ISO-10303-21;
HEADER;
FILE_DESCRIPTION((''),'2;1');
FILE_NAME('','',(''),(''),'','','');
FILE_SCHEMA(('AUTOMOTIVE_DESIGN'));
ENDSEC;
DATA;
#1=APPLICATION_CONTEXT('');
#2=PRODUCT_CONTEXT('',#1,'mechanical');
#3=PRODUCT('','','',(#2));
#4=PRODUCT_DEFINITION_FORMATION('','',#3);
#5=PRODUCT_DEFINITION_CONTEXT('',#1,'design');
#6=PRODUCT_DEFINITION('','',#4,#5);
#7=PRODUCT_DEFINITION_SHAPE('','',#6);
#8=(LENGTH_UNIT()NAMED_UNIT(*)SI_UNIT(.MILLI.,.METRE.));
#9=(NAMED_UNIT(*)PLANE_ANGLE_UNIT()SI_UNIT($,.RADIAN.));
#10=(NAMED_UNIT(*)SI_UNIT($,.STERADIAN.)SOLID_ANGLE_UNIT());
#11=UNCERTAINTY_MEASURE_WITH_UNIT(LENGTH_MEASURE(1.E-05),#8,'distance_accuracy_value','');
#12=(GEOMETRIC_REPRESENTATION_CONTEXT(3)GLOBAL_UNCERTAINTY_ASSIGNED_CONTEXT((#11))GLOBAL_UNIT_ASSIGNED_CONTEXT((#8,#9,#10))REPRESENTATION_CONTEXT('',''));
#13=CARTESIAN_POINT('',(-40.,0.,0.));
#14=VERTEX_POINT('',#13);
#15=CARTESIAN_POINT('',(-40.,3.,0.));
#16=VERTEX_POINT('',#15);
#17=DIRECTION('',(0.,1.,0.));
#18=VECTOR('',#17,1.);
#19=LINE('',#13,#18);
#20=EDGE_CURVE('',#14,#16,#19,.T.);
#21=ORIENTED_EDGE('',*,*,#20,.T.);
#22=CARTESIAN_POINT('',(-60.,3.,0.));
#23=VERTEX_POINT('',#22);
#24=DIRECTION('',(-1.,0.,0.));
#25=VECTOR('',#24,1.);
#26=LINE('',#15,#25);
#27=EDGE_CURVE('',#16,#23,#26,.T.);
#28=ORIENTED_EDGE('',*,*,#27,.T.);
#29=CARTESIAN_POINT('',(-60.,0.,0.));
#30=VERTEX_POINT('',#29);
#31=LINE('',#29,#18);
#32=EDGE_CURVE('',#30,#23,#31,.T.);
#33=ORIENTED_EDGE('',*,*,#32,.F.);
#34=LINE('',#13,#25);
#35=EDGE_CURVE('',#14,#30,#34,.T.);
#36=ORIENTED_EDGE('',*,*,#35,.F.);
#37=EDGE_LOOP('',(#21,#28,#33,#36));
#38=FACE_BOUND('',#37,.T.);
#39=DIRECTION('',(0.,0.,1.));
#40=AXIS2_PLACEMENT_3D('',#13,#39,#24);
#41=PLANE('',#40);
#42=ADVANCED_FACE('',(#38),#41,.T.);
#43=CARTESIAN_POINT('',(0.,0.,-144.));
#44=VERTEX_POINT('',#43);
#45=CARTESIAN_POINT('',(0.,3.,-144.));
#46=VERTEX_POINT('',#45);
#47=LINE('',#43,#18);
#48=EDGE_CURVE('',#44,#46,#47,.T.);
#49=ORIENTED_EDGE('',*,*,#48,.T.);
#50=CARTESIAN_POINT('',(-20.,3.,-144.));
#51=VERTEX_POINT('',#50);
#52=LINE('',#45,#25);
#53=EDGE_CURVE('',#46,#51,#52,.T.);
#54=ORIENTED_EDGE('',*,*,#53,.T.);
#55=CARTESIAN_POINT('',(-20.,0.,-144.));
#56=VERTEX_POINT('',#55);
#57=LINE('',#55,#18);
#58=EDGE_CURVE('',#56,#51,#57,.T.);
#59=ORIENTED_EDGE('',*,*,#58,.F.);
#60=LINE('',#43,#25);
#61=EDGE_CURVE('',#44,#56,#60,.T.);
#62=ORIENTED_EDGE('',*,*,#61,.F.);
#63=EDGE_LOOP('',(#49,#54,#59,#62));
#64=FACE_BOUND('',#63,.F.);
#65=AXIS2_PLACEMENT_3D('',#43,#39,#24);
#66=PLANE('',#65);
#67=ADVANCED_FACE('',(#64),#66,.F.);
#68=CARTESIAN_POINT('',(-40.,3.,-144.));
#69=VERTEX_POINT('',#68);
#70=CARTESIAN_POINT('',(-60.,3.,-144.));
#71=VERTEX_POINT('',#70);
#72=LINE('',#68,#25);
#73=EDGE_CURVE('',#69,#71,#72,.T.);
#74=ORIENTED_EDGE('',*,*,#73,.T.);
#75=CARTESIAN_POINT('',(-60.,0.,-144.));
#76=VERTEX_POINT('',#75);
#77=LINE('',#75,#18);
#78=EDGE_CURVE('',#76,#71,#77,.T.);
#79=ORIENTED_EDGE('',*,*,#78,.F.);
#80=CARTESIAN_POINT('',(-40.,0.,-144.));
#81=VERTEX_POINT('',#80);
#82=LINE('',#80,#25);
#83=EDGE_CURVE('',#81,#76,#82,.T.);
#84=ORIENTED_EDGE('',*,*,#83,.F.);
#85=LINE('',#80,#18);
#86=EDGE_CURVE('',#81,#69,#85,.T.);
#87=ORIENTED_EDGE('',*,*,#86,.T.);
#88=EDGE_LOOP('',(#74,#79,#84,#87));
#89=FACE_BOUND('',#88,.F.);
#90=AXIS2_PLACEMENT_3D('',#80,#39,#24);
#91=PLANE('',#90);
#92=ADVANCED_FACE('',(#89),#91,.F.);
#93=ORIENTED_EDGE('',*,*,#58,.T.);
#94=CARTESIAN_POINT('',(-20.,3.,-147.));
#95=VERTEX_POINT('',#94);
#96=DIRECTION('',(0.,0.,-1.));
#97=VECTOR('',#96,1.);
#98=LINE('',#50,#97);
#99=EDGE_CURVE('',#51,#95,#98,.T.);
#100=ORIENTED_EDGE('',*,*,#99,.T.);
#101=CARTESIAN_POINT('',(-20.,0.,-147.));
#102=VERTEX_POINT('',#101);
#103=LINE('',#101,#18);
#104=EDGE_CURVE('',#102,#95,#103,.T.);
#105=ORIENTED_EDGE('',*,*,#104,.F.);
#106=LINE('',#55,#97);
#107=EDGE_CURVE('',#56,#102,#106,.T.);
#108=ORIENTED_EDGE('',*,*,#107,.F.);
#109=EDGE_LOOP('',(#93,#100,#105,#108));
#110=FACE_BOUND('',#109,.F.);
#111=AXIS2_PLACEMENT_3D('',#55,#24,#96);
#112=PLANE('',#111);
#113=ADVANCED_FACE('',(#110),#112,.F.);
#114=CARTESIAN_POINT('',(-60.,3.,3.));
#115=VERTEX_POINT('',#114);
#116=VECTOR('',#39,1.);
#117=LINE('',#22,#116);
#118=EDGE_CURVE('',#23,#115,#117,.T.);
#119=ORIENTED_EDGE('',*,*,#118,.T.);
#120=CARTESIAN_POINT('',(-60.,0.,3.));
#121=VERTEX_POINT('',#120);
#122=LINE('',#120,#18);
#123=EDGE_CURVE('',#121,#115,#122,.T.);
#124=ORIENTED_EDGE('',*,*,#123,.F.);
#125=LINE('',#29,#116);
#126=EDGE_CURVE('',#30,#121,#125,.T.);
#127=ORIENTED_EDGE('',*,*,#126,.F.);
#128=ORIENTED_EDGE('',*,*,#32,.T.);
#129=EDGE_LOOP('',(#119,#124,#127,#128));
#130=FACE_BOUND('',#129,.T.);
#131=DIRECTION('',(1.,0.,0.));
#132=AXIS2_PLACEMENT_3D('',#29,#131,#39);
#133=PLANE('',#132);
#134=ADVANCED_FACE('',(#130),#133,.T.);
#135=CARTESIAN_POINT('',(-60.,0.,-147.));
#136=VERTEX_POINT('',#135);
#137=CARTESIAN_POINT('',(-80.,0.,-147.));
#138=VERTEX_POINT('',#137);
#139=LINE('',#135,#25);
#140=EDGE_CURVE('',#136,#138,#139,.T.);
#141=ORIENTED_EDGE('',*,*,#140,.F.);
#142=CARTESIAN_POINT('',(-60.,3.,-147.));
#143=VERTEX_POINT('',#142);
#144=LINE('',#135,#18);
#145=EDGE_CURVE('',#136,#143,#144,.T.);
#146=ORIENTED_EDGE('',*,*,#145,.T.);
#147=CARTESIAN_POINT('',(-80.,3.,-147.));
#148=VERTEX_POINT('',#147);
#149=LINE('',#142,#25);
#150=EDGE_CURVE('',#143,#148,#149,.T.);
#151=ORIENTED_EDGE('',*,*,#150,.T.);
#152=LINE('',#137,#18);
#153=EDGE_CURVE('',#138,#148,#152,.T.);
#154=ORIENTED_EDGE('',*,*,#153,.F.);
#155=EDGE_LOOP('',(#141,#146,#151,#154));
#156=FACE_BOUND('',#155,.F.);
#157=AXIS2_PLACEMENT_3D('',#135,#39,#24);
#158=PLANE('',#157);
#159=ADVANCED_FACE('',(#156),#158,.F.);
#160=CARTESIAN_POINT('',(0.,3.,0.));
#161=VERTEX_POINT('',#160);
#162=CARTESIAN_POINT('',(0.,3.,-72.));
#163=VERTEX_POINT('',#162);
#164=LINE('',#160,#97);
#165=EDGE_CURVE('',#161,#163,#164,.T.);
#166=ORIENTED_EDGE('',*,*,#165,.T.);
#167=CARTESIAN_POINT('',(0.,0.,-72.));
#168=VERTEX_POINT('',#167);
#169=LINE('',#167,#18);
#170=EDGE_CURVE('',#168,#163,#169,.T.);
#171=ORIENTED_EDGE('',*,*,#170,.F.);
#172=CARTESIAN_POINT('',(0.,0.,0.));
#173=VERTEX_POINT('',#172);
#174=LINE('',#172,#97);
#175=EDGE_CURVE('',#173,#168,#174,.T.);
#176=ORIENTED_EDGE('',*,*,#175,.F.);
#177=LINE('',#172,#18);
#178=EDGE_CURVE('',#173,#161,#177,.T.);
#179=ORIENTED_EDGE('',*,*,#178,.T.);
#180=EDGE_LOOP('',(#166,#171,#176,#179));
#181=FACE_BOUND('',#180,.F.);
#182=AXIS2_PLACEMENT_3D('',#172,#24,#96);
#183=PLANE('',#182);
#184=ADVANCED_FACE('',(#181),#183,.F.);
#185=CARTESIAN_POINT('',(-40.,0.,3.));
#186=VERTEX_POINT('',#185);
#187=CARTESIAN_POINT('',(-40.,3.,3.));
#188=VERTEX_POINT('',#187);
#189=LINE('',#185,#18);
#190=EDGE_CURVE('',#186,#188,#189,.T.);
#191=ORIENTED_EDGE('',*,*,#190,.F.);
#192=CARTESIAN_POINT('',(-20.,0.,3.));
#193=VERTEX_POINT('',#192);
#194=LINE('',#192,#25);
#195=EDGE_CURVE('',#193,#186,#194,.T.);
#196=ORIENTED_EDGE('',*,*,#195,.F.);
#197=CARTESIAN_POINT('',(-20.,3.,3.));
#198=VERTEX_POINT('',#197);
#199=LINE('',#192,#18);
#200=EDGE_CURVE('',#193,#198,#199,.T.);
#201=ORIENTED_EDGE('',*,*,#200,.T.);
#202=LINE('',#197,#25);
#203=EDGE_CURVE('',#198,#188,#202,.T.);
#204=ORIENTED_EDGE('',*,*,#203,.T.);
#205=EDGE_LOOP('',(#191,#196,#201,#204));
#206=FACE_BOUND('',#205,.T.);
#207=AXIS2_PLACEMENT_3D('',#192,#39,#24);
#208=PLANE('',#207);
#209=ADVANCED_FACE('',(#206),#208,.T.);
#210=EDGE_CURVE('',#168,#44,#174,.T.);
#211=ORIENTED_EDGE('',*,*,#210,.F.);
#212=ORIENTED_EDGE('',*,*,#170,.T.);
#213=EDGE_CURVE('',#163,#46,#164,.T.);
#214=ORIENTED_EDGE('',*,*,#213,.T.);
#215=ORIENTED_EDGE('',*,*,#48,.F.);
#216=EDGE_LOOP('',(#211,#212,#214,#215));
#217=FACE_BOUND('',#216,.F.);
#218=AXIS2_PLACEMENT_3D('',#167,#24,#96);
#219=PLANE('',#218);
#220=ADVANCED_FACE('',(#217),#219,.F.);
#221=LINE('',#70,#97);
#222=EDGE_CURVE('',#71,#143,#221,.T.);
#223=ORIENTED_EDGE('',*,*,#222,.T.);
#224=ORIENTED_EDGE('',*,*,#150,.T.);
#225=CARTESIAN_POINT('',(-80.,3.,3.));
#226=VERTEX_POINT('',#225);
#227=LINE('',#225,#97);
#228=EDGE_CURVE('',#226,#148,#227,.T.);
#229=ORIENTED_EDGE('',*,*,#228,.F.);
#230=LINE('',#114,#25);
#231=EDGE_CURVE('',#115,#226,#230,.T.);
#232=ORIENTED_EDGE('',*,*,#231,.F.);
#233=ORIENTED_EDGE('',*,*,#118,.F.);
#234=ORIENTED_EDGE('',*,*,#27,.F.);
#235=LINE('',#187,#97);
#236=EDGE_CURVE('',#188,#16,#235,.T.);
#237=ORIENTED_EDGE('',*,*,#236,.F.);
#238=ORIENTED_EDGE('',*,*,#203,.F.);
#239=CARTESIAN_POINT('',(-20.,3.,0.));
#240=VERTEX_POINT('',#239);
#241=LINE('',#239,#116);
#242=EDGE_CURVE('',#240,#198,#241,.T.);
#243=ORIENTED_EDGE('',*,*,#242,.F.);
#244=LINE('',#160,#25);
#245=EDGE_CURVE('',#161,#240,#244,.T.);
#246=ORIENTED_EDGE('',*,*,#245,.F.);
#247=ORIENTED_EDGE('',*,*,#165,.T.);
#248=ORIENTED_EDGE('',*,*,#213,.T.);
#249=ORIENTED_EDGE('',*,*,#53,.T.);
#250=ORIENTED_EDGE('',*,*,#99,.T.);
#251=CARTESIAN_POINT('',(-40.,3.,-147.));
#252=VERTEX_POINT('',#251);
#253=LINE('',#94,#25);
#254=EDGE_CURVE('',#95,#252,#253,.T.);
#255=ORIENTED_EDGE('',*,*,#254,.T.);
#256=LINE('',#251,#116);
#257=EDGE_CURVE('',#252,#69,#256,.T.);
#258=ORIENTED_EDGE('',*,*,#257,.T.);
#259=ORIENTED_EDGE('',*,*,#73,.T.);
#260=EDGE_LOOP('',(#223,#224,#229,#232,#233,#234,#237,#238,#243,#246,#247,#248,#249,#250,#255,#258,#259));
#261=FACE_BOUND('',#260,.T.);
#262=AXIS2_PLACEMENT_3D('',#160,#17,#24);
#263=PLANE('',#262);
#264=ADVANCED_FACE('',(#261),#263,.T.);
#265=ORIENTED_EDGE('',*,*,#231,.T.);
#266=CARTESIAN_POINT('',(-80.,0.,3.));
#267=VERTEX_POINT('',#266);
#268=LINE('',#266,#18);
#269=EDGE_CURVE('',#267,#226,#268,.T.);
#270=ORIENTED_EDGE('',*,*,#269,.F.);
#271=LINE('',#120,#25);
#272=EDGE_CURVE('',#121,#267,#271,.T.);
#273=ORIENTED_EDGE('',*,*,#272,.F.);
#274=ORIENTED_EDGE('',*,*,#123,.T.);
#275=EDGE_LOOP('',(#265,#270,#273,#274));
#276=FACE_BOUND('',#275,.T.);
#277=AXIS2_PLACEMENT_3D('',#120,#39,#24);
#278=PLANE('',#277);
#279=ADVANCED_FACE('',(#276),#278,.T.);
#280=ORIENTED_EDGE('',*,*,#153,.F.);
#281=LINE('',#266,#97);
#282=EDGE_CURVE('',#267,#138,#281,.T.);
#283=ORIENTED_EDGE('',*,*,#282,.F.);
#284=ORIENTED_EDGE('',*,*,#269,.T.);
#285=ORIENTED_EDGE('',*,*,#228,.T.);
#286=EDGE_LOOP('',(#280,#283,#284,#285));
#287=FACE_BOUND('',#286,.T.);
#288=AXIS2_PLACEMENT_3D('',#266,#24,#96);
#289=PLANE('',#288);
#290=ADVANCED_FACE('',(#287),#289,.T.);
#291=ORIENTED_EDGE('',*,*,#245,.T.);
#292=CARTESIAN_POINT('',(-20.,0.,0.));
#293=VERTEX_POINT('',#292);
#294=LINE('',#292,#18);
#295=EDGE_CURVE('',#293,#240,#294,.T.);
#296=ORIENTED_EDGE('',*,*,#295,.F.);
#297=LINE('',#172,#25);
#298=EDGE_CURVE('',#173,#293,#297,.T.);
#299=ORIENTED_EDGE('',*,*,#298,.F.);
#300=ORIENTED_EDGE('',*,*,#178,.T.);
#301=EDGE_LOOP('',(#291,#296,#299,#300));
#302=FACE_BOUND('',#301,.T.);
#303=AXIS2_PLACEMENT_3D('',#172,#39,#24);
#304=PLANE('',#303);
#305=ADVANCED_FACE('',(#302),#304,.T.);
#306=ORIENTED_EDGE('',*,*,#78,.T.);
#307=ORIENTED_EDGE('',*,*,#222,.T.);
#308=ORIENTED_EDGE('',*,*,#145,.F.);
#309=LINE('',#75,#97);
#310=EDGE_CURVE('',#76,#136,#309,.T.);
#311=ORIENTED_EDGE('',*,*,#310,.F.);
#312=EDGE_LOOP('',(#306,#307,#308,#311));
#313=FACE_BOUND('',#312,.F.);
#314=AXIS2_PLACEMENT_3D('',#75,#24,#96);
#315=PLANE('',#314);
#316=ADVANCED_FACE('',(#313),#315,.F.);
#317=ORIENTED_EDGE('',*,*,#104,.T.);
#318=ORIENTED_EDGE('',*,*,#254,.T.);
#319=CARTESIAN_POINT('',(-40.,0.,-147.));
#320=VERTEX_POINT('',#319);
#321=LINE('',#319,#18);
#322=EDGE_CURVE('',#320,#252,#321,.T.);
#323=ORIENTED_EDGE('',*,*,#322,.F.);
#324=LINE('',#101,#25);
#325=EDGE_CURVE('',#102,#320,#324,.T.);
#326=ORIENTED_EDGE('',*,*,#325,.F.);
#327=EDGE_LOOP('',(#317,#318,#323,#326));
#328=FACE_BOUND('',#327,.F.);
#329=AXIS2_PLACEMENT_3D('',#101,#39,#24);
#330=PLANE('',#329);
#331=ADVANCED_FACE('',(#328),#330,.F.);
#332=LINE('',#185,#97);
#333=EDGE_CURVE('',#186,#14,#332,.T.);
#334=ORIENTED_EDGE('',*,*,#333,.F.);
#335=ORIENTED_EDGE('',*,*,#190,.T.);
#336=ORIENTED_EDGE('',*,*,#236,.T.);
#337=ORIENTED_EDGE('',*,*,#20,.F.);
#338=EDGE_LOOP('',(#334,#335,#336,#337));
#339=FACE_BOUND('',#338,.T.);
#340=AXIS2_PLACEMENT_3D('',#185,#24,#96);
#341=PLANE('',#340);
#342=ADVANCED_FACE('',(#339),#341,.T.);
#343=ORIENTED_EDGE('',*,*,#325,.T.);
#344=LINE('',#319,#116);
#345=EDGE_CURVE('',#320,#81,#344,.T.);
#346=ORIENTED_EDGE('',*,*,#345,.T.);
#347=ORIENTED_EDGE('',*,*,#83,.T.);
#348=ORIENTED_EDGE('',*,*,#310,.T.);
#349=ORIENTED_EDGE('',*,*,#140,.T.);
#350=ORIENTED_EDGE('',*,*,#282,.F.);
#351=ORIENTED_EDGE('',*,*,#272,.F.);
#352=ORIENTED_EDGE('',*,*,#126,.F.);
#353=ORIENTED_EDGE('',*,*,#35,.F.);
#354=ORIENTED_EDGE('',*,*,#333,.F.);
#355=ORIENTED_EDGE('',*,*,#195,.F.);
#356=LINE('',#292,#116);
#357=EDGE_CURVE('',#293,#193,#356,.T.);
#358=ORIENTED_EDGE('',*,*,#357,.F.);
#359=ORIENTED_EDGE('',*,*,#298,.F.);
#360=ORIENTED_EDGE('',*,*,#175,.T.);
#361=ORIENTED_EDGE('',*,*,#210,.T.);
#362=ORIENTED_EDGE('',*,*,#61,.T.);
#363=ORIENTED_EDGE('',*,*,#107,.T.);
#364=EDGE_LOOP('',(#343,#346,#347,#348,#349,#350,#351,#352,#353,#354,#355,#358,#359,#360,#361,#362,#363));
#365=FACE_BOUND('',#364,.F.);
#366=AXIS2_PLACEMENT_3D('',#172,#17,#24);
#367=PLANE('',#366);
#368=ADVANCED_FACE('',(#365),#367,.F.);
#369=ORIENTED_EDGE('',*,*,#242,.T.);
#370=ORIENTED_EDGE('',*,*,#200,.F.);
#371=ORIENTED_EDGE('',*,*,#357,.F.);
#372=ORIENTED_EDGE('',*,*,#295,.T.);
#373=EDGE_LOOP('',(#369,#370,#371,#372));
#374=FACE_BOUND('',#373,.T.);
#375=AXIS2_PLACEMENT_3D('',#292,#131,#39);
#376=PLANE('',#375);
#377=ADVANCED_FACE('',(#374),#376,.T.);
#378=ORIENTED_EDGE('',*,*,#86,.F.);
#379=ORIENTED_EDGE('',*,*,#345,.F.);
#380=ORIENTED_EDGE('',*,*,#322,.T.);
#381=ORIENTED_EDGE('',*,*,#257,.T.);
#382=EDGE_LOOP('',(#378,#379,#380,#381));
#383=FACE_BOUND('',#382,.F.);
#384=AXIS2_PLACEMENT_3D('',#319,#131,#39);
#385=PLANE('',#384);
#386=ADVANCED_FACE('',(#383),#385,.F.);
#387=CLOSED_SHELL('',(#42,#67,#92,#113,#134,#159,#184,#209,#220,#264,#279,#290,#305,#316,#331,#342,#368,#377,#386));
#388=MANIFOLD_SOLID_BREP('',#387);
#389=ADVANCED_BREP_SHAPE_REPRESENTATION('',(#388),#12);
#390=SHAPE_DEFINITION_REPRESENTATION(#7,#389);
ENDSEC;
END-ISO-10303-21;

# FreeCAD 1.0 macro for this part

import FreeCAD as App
import Part
import Sketcher

doc = App.newDocument("Part")
params = doc.addObject("Spreadsheet::Sheet", "Params")
for row, (alias, value) in enumerate([
    ("sketch1_width", "20 mm"),
    ("sketch1_height", "144 mm"),
    ("sketch1_height2", "3 mm"),
    ("pad1_length", "3 mm"),
], start=1):
    params.set(f"A{row}", alias)
    params.set(f"B{row}", "=" + value)
    params.setAlias(f"B{row}", alias)

body = doc.addObject("PartDesign::Body", "Body")

# Sketch on XZ plane
sketch1 = body.newObject("Sketcher::SketchObject", "Sketch")
sketch1.AttachmentSupport = (doc.getObject("XZ_Plane"), [""])
sketch1.MapMode = "FlatFace"
sketch1.addGeometry(Part.LineSegment(App.Vector(-20, 0, 0), App.Vector(0, 0, 0)), False)
sketch1.addGeometry(Part.LineSegment(App.Vector(0, 0, 0), App.Vector(0, -144, 0)), False)
sketch1.addGeometry(Part.LineSegment(App.Vector(0, -144, 0), App.Vector(-20, -144, 0)), False)
sketch1.addGeometry(Part.LineSegment(App.Vector(-20, -144, 0), App.Vector(-20, -147, 0)), False)
sketch1.addGeometry(Part.LineSegment(App.Vector(-20, -147, 0), App.Vector(-40, -147, 0)), False)
sketch1.addGeometry(Part.LineSegment(App.Vector(-40, -147, 0), App.Vector(-40, -144, 0)), False)
sketch1.addGeometry(Part.LineSegment(App.Vector(-40, -144, 0), App.Vector(-60, -144, 0)), False)
sketch1.addGeometry(Part.LineSegment(App.Vector(-60, -144, 0), App.Vector(-60, -147, 0)), False)
sketch1.addGeometry(Part.LineSegment(App.Vector(-60, -147, 0), App.Vector(-80, -147, 0)), False)
sketch1.addGeometry(Part.LineSegment(App.Vector(-80, -147, 0), App.Vector(-80, 3, 0)), False)
sketch1.addGeometry(Part.LineSegment(App.Vector(-80, 3, 0), App.Vector(-60, 3, 0)), False)
sketch1.addGeometry(Part.LineSegment(App.Vector(-60, 3, 0), App.Vector(-60, 0, 0)), False)
sketch1.addGeometry(Part.LineSegment(App.Vector(-60, 0, 0), App.Vector(-40, 0, 0)), False)
sketch1.addGeometry(Part.LineSegment(App.Vector(-40, 0, 0), App.Vector(-40, 3, 0)), False)
sketch1.addGeometry(Part.LineSegment(App.Vector(-40, 3, 0), App.Vector(-20, 3, 0)), False)
sketch1.addGeometry(Part.LineSegment(App.Vector(-20, 3, 0), App.Vector(-20, 0, 0)), False)
sketch1.addConstraint(Sketcher.Constraint("Coincident", 0, 2, 1, 1))
sketch1.addConstraint(Sketcher.Constraint("Coincident", 1, 2, 2, 1))
sketch1.addConstraint(Sketcher.Constraint("Coincident", 2, 2, 3, 1))
sketch1.addConstraint(Sketcher.Constraint("Coincident", 3, 2, 4, 1))
sketch1.addConstraint(Sketcher.Constraint("Coincident", 4, 2, 5, 1))
sketch1.addConstraint(Sketcher.Constraint("Coincident", 5, 2, 6, 1))
sketch1.addConstraint(Sketcher.Constraint("Coincident", 6, 2, 7, 1))
sketch1.addConstraint(Sketcher.Constraint("Coincident", 7, 2, 8, 1))
sketch1.addConstraint(Sketcher.Constraint("Coincident", 8, 2, 9, 1))
sketch1.addConstraint(Sketcher.Constraint("Coincident", 9, 2, 10, 1))
sketch1.addConstraint(Sketcher.Constraint("Coincident", 10, 2, 11, 1))
sketch1.addConstraint(Sketcher.Constraint("Coincident", 11, 2, 12, 1))
sketch1.addConstraint(Sketcher.Constraint("Coincident", 12, 2, 13, 1))
sketch1.addConstraint(Sketcher.Constraint("Coincident", 13, 2, 14, 1))
sketch1.addConstraint(Sketcher.Constraint("Coincident", 14, 2, 15, 1))
sketch1.addConstraint(Sketcher.Constraint("Coincident", 15, 2, 0, 1))
sketch1.addConstraint(Sketcher.Constraint("Horizontal", 0))
sketch1.addConstraint(Sketcher.Constraint("Vertical", 1))
sketch1.addConstraint(Sketcher.Constraint("Horizontal", 2))
sketch1.addConstraint(Sketcher.Constraint("Vertical", 3))
sketch1.addConstraint(Sketcher.Constraint("Horizontal", 4))
sketch1.addConstraint(Sketcher.Constraint("Vertical", 5))
sketch1.addConstraint(Sketcher.Constraint("Horizontal", 6))
sketch1.addConstraint(Sketcher.Constraint("Vertical", 7))
sketch1.addConstraint(Sketcher.Constraint("Horizontal", 8))
sketch1.addConstraint(Sketcher.Constraint("Vertical", 9))
sketch1.addConstraint(Sketcher.Constraint("Horizontal", 10))
sketch1.addConstraint(Sketcher.Constraint("Vertical", 11))
sketch1.addConstraint(Sketcher.Constraint("Horizontal", 12))
sketch1.addConstraint(Sketcher.Constraint("Vertical", 13))
sketch1.addConstraint(Sketcher.Constraint("Horizontal", 14))
sketch1.addConstraint(Sketcher.Constraint("Vertical", 15))
sketch1.addConstraint(Sketcher.Constraint("Coincident", 0, 2, -1, 1))
sketch1.addConstraint(Sketcher.Constraint("PointOnObject", 11, 2, -1))
sketch1.addConstraint(Sketcher.Constraint("Horizontal", 2, 2, 5, 2))
sketch1.addConstraint(Sketcher.Constraint("Horizontal", 4, 2, 7, 2))
sketch1.addConstraint(Sketcher.Constraint("Horizontal", 10, 2, 13, 2))
sketch1.addConstraint(Sketcher.Constraint("Vertical", 7, 2, 10, 2))
sketch1.addConstraint(Sketcher.Constraint("Vertical", 5, 2, 12, 2))
sketch1.addConstraint(Sketcher.Constraint("Vertical", 3, 2, 14, 2))
sketch1.addConstraint(Sketcher.Constraint("Equal", 2, 4))
sketch1.addConstraint(Sketcher.Constraint("Equal", 4, 6))
sketch1.addConstraint(Sketcher.Constraint("Equal", 6, 8))
sketch1.addConstraint(Sketcher.Constraint("Equal", 7, 11))
sketch1.addConstraint(Sketcher.Constraint("DistanceX", 0, 1, 0, 2, 20.0))
sketch1.addConstraint(Sketcher.Constraint("DistanceY", 1, 2, 1, 1, 144.0))
sketch1.addConstraint(Sketcher.Constraint("DistanceY", 3, 2, 3, 1, 3.0))
sketch1.setExpression("Constraints[44]", "Params.sketch1_width")
sketch1.setExpression("Constraints[45]", "Params.sketch1_height")
sketch1.setExpression("Constraints[46]", "Params.sketch1_height2")
pad1 = body.newObject("PartDesign::Pad", "Pad")
pad1.Profile = sketch1
pad1.setExpression("Length", "Params.pad1_length")
pad1.Reversed = True

doc.recompute()
